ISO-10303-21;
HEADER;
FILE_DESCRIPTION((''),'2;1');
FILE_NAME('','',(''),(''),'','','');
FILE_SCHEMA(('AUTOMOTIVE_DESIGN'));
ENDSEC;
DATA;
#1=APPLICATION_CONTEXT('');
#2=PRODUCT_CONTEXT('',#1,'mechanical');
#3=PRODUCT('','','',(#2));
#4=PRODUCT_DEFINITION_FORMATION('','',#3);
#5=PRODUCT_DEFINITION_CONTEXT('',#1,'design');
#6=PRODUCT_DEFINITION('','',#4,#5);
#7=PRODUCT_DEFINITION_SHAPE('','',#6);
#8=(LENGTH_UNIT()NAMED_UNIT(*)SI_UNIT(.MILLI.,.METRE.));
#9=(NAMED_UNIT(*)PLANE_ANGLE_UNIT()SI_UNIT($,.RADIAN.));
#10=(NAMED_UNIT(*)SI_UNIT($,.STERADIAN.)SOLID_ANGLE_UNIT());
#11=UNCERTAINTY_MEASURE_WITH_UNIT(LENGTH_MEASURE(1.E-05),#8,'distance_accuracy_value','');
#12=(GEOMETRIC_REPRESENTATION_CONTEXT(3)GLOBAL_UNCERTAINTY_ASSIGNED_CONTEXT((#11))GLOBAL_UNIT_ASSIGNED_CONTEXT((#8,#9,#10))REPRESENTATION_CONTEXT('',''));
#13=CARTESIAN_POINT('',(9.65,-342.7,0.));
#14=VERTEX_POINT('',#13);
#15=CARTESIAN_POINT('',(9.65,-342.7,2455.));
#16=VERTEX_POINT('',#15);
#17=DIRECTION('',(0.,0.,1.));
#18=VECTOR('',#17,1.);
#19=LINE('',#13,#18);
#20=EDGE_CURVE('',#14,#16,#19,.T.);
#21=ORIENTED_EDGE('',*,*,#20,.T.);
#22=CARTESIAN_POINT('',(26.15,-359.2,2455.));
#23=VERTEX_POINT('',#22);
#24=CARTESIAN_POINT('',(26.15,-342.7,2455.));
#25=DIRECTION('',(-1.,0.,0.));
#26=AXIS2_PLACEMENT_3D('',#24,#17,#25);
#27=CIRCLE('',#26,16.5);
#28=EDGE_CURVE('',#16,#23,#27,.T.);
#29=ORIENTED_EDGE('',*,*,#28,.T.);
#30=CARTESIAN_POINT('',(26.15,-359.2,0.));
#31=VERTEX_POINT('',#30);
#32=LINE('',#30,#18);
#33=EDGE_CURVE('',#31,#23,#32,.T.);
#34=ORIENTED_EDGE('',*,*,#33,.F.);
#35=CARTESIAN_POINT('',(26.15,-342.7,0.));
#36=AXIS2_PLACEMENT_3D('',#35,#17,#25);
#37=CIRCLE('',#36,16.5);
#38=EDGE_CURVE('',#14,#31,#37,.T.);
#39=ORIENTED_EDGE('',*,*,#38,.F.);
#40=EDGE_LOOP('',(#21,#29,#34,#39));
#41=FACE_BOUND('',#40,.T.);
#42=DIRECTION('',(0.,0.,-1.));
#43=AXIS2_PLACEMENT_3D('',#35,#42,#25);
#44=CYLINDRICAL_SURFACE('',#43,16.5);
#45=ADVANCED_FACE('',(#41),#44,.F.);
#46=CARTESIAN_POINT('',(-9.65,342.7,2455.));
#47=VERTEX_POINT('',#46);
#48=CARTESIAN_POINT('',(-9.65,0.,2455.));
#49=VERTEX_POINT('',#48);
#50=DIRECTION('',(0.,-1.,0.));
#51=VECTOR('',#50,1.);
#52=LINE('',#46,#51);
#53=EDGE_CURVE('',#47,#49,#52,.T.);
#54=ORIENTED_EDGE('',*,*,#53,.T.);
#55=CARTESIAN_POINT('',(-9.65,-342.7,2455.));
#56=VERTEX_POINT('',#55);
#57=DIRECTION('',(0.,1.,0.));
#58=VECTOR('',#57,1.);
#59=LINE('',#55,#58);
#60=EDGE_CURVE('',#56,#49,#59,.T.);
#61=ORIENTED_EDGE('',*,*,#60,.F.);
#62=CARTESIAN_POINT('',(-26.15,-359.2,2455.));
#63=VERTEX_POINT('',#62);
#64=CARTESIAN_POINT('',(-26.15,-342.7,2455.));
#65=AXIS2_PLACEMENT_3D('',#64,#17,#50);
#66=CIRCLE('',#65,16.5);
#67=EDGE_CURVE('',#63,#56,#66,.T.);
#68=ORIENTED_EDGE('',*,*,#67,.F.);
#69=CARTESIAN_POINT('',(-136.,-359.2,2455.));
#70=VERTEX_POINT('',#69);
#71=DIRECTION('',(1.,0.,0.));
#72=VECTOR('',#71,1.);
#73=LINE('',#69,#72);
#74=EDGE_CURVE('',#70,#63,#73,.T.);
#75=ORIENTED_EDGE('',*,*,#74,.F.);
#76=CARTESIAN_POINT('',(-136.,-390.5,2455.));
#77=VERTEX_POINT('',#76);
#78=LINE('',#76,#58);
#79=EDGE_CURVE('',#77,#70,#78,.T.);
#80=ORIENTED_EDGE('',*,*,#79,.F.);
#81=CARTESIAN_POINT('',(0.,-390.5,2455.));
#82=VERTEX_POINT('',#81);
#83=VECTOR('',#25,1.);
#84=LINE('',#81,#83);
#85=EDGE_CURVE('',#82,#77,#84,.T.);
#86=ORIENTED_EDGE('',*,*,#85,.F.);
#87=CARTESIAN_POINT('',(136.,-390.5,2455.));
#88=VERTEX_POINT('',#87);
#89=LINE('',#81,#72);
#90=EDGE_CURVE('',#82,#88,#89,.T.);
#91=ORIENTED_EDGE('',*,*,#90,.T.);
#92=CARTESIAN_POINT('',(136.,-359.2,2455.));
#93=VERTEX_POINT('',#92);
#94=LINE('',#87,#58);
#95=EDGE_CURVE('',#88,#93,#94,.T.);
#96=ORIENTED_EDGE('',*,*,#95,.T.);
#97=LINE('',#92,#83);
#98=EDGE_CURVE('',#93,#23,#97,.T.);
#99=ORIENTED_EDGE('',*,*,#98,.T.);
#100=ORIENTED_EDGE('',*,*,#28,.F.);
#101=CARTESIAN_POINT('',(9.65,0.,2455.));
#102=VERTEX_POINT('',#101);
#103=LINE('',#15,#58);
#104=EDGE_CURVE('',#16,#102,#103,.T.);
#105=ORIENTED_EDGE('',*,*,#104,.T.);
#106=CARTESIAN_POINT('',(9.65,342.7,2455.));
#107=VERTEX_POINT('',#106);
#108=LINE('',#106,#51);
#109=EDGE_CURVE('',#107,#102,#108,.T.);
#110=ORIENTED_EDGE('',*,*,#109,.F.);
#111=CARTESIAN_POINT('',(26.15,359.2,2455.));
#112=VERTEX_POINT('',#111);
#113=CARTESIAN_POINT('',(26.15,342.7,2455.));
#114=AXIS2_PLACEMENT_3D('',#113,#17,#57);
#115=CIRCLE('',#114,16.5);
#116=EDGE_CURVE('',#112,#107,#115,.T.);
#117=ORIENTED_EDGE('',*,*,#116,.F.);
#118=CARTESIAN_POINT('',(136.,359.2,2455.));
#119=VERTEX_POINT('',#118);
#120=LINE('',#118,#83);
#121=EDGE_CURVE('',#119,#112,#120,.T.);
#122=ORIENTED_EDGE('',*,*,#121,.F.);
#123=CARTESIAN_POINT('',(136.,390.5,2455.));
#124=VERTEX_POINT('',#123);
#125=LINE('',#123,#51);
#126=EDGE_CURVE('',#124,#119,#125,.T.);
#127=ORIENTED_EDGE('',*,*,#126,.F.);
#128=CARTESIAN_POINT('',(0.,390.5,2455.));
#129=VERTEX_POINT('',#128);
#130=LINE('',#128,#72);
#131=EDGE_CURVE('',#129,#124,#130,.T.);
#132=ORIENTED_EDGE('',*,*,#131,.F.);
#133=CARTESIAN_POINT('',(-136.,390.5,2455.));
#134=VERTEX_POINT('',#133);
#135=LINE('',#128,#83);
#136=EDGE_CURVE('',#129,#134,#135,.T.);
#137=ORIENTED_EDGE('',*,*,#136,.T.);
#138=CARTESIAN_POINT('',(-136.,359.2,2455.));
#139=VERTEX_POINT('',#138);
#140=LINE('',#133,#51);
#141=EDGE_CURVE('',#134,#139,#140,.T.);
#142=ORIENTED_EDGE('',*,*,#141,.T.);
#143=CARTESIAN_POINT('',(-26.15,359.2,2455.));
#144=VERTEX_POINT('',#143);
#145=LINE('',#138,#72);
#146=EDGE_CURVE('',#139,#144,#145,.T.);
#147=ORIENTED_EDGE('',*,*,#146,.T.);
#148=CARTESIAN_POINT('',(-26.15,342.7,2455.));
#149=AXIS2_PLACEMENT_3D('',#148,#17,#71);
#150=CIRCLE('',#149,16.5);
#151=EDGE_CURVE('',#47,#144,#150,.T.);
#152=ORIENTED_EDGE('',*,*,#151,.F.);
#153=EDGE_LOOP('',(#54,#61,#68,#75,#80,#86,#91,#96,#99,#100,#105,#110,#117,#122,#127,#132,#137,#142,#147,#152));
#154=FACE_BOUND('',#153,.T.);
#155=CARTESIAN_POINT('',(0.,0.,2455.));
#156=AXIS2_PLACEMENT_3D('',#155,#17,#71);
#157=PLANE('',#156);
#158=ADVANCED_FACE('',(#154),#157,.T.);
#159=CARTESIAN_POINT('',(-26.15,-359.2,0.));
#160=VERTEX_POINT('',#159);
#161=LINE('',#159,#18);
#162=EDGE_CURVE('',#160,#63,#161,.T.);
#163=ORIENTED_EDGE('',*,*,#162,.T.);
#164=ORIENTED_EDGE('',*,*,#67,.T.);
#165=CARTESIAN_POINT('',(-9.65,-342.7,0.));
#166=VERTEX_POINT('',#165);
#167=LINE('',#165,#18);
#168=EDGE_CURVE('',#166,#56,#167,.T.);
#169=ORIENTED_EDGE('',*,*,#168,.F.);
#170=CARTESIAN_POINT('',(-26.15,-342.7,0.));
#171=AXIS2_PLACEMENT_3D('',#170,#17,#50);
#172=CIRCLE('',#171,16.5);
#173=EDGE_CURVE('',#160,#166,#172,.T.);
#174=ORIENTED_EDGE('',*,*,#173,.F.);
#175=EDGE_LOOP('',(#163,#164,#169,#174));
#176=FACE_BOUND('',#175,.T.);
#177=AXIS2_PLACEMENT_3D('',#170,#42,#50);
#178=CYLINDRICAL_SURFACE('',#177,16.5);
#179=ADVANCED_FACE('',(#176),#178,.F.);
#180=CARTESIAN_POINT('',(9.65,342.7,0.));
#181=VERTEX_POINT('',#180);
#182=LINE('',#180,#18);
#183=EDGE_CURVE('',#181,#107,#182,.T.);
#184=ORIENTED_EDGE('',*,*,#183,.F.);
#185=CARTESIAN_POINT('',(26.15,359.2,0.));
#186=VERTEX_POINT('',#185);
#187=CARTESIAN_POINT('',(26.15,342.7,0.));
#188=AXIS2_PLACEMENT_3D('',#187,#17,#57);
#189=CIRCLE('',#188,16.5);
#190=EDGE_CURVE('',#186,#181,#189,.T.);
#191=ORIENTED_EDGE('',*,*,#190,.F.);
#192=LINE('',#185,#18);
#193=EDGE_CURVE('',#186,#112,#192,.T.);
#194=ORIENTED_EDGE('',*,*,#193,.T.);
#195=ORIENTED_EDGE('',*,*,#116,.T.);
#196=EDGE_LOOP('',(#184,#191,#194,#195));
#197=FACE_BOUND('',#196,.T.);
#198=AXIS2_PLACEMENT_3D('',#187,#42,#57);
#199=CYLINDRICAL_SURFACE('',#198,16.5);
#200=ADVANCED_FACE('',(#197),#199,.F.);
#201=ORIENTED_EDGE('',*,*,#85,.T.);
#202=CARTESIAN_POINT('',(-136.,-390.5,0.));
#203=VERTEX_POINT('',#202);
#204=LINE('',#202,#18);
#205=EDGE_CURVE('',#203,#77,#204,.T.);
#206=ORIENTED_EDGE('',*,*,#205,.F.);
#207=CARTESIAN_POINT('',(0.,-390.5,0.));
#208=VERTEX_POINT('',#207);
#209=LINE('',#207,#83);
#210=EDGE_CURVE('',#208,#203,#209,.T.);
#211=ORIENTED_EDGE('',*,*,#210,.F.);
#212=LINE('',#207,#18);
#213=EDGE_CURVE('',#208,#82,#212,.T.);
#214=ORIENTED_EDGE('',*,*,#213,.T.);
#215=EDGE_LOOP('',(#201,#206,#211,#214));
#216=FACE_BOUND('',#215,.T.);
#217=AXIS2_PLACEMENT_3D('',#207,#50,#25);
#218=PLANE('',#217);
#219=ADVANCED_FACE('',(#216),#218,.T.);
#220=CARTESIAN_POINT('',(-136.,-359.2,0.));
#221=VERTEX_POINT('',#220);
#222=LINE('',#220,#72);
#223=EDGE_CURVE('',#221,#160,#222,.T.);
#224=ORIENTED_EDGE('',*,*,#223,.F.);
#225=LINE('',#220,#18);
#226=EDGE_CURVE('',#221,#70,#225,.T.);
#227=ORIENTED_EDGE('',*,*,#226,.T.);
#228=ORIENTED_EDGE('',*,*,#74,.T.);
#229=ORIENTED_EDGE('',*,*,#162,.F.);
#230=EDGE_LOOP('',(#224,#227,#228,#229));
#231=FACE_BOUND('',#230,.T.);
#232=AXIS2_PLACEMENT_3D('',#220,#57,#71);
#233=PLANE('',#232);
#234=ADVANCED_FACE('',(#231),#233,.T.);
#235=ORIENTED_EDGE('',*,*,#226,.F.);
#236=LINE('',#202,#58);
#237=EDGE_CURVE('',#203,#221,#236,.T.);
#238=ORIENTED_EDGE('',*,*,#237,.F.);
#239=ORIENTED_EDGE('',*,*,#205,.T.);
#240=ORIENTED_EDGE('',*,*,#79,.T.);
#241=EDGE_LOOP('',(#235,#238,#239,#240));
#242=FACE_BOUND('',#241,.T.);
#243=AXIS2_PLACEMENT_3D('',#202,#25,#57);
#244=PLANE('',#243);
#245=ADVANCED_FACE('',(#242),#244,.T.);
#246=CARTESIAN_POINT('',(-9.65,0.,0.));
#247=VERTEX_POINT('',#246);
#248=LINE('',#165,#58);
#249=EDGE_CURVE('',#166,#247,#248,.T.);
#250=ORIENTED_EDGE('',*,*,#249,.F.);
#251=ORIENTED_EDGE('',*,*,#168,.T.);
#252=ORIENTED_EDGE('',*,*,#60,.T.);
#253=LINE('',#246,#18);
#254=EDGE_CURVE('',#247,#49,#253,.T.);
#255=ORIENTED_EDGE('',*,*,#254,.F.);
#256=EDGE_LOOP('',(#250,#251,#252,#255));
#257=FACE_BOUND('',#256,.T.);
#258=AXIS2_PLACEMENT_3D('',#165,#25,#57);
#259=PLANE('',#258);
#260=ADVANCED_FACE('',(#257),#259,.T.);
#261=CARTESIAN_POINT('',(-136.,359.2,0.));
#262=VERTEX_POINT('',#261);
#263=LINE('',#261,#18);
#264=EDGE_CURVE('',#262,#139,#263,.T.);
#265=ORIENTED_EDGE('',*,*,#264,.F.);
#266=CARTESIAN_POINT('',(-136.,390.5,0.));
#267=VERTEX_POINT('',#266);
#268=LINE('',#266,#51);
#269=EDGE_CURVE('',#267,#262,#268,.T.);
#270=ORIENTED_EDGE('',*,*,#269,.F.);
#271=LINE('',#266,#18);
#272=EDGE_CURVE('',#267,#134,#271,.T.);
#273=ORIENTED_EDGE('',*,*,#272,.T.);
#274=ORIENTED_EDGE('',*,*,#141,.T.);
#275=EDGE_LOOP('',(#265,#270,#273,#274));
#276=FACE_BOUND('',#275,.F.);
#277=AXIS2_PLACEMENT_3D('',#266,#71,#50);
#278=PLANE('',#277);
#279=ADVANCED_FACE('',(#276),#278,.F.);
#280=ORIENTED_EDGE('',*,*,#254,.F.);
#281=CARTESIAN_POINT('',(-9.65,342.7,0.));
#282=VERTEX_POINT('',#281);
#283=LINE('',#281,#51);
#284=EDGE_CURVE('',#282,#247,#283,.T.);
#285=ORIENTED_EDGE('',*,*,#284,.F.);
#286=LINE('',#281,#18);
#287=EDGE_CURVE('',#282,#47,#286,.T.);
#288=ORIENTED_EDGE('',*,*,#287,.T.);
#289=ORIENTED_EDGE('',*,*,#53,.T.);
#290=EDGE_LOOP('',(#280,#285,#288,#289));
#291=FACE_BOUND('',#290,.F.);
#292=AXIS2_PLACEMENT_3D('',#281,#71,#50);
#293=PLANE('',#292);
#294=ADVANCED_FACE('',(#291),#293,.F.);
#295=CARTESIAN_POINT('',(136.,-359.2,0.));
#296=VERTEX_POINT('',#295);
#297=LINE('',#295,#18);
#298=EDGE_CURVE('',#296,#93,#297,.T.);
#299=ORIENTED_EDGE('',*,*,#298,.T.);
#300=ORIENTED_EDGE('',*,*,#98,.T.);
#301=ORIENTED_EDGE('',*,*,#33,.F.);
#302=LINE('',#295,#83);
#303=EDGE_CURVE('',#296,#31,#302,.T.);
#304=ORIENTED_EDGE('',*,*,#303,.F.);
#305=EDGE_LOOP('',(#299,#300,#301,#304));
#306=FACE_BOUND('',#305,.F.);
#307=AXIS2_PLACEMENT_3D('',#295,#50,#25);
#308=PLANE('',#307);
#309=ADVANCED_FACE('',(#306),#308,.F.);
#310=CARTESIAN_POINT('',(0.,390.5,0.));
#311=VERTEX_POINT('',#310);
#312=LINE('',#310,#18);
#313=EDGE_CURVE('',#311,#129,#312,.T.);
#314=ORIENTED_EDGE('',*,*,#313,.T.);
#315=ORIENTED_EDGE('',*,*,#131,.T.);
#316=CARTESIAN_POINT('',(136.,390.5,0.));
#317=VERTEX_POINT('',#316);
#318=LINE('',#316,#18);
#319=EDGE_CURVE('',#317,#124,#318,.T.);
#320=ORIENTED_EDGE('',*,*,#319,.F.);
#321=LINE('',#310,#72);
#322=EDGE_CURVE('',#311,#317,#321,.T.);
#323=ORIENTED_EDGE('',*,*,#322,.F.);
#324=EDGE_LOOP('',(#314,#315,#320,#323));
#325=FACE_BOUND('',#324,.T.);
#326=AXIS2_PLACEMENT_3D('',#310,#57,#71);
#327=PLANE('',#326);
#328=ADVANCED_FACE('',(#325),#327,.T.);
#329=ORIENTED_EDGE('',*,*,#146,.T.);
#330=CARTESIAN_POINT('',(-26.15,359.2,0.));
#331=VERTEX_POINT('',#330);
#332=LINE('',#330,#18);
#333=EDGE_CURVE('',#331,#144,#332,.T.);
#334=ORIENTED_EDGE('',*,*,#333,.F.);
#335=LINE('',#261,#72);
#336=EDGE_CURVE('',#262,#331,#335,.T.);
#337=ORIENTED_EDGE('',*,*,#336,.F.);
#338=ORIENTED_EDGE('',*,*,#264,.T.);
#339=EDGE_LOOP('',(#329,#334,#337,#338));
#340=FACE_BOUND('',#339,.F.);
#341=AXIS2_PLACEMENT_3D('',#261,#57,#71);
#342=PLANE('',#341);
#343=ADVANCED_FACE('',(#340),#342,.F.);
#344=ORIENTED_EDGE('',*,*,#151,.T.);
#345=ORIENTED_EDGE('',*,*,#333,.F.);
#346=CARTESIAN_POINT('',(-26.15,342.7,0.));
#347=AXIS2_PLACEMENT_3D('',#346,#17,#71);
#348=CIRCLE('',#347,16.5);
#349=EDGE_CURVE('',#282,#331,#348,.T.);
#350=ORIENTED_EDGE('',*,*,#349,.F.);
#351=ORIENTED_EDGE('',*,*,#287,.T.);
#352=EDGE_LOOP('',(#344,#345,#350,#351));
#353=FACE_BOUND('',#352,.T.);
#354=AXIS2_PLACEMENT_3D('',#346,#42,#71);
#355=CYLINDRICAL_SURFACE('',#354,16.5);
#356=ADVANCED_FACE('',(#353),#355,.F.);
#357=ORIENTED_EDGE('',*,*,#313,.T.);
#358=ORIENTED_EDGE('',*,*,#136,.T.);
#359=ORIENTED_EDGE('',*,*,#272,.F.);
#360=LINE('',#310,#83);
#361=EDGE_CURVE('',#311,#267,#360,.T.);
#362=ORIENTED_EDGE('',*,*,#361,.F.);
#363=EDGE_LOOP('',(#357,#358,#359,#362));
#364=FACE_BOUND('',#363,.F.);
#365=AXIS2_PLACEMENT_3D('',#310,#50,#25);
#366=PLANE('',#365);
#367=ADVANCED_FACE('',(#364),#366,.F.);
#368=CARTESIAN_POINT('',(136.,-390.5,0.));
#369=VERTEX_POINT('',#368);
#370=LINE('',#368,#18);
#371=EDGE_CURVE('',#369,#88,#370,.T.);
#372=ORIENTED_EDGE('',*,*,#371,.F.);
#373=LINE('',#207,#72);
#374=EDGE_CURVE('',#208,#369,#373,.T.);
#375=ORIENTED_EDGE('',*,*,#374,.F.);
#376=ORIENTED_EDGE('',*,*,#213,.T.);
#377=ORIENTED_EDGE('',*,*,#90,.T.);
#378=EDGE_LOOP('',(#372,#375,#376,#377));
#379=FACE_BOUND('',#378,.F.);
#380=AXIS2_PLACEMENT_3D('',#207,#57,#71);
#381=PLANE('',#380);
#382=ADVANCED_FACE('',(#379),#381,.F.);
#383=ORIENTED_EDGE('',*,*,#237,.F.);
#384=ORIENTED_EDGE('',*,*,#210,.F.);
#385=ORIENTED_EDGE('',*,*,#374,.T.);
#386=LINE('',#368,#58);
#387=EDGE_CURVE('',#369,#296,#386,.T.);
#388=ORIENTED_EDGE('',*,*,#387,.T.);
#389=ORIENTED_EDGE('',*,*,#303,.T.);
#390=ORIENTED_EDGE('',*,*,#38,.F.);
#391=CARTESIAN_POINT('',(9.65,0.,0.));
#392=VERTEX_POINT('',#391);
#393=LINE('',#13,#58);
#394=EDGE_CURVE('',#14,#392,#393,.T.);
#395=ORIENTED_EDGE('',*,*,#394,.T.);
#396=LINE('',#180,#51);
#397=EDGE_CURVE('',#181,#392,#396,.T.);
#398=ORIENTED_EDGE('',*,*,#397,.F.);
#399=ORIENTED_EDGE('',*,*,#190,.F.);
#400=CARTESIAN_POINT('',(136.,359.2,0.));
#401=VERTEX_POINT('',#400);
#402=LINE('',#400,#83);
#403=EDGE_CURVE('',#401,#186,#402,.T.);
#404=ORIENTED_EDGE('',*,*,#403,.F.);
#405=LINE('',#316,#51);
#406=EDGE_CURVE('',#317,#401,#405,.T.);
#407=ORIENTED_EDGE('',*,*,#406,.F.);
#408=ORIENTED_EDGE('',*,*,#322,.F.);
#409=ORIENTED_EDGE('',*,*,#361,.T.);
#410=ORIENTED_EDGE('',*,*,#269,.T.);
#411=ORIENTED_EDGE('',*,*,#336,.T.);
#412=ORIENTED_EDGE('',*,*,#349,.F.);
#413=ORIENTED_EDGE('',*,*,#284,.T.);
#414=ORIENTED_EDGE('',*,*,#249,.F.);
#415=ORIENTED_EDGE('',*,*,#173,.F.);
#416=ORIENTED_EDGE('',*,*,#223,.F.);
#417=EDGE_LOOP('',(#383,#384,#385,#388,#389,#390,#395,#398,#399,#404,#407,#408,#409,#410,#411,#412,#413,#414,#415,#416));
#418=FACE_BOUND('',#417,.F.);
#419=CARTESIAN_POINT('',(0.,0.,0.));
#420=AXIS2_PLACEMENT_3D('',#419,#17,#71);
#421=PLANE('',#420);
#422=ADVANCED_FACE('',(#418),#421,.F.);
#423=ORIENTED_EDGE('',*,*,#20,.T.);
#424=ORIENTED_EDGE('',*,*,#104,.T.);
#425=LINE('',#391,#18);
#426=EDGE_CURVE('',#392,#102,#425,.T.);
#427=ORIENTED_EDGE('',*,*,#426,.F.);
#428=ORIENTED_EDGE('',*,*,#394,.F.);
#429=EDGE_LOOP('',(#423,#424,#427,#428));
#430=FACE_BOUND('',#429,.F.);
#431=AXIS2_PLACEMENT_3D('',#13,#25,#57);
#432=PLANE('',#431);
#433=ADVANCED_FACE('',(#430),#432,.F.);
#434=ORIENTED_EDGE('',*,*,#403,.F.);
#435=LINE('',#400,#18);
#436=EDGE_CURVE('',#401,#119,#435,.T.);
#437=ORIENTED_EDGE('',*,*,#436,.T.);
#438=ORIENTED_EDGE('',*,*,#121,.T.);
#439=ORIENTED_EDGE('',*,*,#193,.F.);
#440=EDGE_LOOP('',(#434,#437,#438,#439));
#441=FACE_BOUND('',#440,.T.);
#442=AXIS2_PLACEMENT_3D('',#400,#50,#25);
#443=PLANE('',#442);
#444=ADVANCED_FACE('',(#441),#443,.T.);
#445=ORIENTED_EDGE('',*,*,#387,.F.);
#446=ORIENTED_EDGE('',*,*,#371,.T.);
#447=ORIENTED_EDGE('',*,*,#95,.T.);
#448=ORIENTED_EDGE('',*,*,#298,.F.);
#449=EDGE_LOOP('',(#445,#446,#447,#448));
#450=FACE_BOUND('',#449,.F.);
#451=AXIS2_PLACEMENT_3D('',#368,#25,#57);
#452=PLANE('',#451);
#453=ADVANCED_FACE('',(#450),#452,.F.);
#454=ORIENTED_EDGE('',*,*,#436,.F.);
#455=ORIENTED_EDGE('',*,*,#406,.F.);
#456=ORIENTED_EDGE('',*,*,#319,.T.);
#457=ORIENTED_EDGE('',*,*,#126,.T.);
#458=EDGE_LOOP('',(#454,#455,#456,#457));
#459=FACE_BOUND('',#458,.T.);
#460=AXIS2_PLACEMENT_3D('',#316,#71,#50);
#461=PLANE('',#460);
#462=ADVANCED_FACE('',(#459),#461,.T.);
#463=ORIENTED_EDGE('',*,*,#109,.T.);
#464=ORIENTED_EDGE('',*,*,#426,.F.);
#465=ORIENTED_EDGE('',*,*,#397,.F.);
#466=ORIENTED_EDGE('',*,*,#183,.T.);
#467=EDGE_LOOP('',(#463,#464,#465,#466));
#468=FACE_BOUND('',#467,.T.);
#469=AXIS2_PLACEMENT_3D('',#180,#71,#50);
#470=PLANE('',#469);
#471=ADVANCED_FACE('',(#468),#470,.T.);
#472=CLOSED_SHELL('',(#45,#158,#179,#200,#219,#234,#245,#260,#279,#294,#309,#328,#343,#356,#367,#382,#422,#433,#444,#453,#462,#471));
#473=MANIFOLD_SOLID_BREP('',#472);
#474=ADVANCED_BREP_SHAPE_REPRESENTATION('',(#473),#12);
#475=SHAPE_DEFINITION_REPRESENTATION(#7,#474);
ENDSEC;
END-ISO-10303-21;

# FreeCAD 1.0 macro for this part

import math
import FreeCAD as App
import Part
import Sketcher

doc = App.newDocument("Part")
params = doc.addObject("Spreadsheet::Sheet", "Params")
for row, (alias, value) in enumerate([
    ("sketch1_radius", "16.5 mm"),
    ("sketch1_height", "31.3 mm"),
    ("pad1_length", "2455 mm"),
], start=1):
    params.set(f"A{row}", alias)
    params.set(f"B{row}", "=" + value)
    params.setAlias(f"B{row}", alias)

body = doc.addObject("PartDesign::Body", "Body")

# Sketch on XY plane
sketch1 = body.newObject("Sketcher::SketchObject", "Sketch")
sketch1.AttachmentSupport = (doc.getObject("XY_Plane"), [""])
sketch1.MapMode = "FlatFace"
sketch1.addGeometry([
    Part.LineSegment(App.Vector(-136, -359.2, 0), App.Vector(-136, -390.5, 0)),  # 0
    Part.LineSegment(App.Vector(-136, -390.5, 0), App.Vector(136, -390.5, 0)),  # 1
    Part.LineSegment(App.Vector(136, -390.5, 0), App.Vector(136, -359.2, 0)),  # 2
    Part.LineSegment(App.Vector(136, -359.2, 0), App.Vector(26.15, -359.2, 0)),  # 3
    Part.ArcOfCircle(Part.Circle(App.Vector(26.15, -342.7, 0), App.Vector(0, 0, 1), 16.5), math.radians(180), math.radians(270)),  # 4
    Part.LineSegment(App.Vector(9.65, -342.7, 0), App.Vector(9.65, 342.7, 0)),  # 5
    Part.ArcOfCircle(Part.Circle(App.Vector(26.15, 342.7, 0), App.Vector(0, 0, 1), 16.5), math.radians(90), math.radians(180)),  # 6
    Part.LineSegment(App.Vector(26.15, 359.2, 0), App.Vector(136, 359.2, 0)),  # 7
    Part.LineSegment(App.Vector(136, 359.2, 0), App.Vector(136, 390.5, 0)),  # 8
    Part.LineSegment(App.Vector(136, 390.5, 0), App.Vector(-136, 390.5, 0)),  # 9
    Part.LineSegment(App.Vector(-136, 390.5, 0), App.Vector(-136, 359.2, 0)),  # 10
    Part.LineSegment(App.Vector(-136, 359.2, 0), App.Vector(-26.15, 359.2, 0)),  # 11
    Part.ArcOfCircle(Part.Circle(App.Vector(-26.15, 342.7, 0), App.Vector(0, 0, 1), 16.5), math.radians(0), math.radians(90)),  # 12
    Part.LineSegment(App.Vector(-9.65, 342.7, 0), App.Vector(-9.65, -342.7, 0)),  # 13
    Part.ArcOfCircle(Part.Circle(App.Vector(-26.15, -342.7, 0), App.Vector(0, 0, 1), 16.5), math.radians(-90), math.radians(0)),  # 14
    Part.LineSegment(App.Vector(-26.15, -359.2, 0), App.Vector(-136, -359.2, 0)),  # 15
], False)
sketch1.addConstraint([
    Sketcher.Constraint("Coincident", 0, 2, 1, 1),
    Sketcher.Constraint("Coincident", 1, 2, 2, 1),
    Sketcher.Constraint("Coincident", 2, 2, 3, 1),
    Sketcher.Constraint("Tangent", 3, 2, 4, 2),
    Sketcher.Constraint("Tangent", 4, 1, 5, 1),
    Sketcher.Constraint("Tangent", 5, 2, 6, 2),
    Sketcher.Constraint("Tangent", 6, 1, 7, 1),
    Sketcher.Constraint("Coincident", 7, 2, 8, 1),
    Sketcher.Constraint("Coincident", 8, 2, 9, 1),
    Sketcher.Constraint("Coincident", 9, 2, 10, 1),
    Sketcher.Constraint("Coincident", 10, 2, 11, 1),
    Sketcher.Constraint("Tangent", 11, 2, 12, 2),
    Sketcher.Constraint("Tangent", 12, 1, 13, 1),
    Sketcher.Constraint("Tangent", 13, 2, 14, 2),
    Sketcher.Constraint("Tangent", 14, 1, 15, 1),
    Sketcher.Constraint("Coincident", 15, 2, 0, 1),
    Sketcher.Constraint("Vertical", 0),
    Sketcher.Constraint("Horizontal", 1),
    Sketcher.Constraint("Vertical", 2),
    Sketcher.Constraint("Horizontal", 3),
    Sketcher.Constraint("Vertical", 5),
    Sketcher.Constraint("Horizontal", 7),
    Sketcher.Constraint("Vertical", 8),
    Sketcher.Constraint("Horizontal", 9),
    Sketcher.Constraint("Vertical", 10),
    Sketcher.Constraint("Horizontal", 11),
    Sketcher.Constraint("Vertical", 13),
    Sketcher.Constraint("Horizontal", 15),
    Sketcher.Constraint("Equal", 4, 6),
    Sketcher.Constraint("Equal", 6, 12),
    Sketcher.Constraint("Equal", 12, 14),
    Sketcher.Constraint("Symmetric", 4, 3, 12, 3, -1, 1),
    Sketcher.Constraint("Symmetric", 0, 2, 8, 2, -1, 1),
    Sketcher.Constraint("Symmetric", 7, 2, 10, 2, -2),
    Sketcher.Constraint("Symmetric", 2, 2, 15, 2, -2),
    Sketcher.Constraint("Radius", 4, 16.5),
    Sketcher.Constraint("DistanceY", 0, 2, 0, 1, 31.3),
    Sketcher.Constraint("DistanceX", 0, 2, -1, 1, 136.0),
    Sketcher.Constraint("DistanceY", 0, 2, -1, 1, 390.5),
    Sketcher.Constraint("DistanceX", -1, 1, 4, 1, 9.65),
])
sketch1.setExpression("Constraints[35]", "Params.sketch1_radius")
sketch1.setExpression("Constraints[36]", "Params.sketch1_height")
pad1 = body.newObject("PartDesign::Pad", "Pad")
pad1.Profile = sketch1
pad1.setExpression("Length", "Params.pad1_length")

doc.recompute()
